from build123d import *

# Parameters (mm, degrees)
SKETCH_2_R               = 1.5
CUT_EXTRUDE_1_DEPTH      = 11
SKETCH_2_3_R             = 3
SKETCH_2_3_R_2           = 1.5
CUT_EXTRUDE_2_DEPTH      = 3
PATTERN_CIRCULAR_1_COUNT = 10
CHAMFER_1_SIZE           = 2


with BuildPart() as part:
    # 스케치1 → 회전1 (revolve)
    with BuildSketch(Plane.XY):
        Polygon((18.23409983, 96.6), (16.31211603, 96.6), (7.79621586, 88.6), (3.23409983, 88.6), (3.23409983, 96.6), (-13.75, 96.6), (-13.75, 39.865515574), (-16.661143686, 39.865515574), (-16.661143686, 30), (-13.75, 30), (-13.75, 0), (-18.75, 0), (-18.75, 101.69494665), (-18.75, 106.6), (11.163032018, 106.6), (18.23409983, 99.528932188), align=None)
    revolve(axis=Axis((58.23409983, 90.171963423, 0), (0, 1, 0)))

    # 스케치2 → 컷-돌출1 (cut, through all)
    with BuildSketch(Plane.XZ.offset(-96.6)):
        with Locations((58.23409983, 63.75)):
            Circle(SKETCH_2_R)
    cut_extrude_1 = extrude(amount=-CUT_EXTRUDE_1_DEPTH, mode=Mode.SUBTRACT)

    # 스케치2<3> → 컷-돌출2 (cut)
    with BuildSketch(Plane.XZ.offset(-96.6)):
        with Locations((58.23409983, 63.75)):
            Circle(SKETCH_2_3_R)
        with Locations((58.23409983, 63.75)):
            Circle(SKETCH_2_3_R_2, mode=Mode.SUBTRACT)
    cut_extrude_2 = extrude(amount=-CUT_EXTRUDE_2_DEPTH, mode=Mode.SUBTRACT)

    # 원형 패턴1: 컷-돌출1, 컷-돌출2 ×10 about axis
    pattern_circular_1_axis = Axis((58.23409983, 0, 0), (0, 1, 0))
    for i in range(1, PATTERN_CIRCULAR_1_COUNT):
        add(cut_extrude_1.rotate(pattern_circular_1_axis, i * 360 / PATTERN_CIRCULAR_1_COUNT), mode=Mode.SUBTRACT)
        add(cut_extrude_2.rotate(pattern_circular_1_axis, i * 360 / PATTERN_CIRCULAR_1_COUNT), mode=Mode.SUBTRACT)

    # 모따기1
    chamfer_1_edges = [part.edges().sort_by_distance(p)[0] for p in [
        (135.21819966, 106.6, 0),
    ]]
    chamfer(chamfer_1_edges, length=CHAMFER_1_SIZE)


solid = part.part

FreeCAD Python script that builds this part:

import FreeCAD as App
import Part
import Sketcher

V = App.Vector
Q = App.Units.Quantity


def edges_at(feature, points):
    """Names of the edges that pass closest to the given points."""
    edges = feature.Shape.Edges
    near = lambda p: min(range(len(edges)), key=lambda i: edges[i].distToShape(Part.Vertex(*p))[0])
    return sorted({f"Edge{near(p) + 1}" for p in points})

doc = App.newDocument("Part")
body = doc.addObject("PartDesign::Body", "Body")

sketch1 = body.newObject("Sketcher::SketchObject", "Sketch")
sketch1.AttachmentSupport = (doc.getObject("XY_Plane"), [""])
sketch1.MapMode = "FlatFace"
sketch1.addGeometry([
    Part.LineSegment(V(16.312116, 96.6, 0), V(18.2341, 96.6, 0)),
    Part.LineSegment(V(18.2341, 96.6, 0), V(18.2341, 99.528932, 0)),
    Part.LineSegment(V(18.2341, 99.528932, 0), V(11.163032, 106.6, 0)),
    Part.LineSegment(V(11.163032, 106.6, 0), V(-18.75, 106.6, 0)),
    Part.LineSegment(V(-18.75, 106.6, 0), V(-18.75, 0, 0)),
    Part.LineSegment(V(-18.75, 0, 0), V(-13.75, 0, 0)),
    Part.LineSegment(V(-13.75, 0, 0), V(-13.75, 30, 0)),
    Part.LineSegment(V(-13.75, 30, 0), V(-16.661144, 30, 0)),
    Part.LineSegment(V(-16.661144, 30, 0), V(-16.661144, 39.865516, 0)),
    Part.LineSegment(V(-16.661144, 39.865516, 0), V(-13.75, 39.865516, 0)),
    Part.LineSegment(V(-13.75, 39.865516, 0), V(-13.75, 96.6, 0)),
    Part.LineSegment(V(-13.75, 96.6, 0), V(3.2341, 96.6, 0)),
    Part.LineSegment(V(3.2341, 96.6, 0), V(3.2341, 88.6, 0)),
    Part.LineSegment(V(3.2341, 88.6, 0), V(7.796216, 88.6, 0)),
    Part.LineSegment(V(7.796216, 88.6, 0), V(16.312116, 96.6, 0)),
], False)
sketch1.addGeometry(Part.LineSegment(V(58.2341, 0, 0), V(58.2341, 106.6, 0)), True)
sketch1.addConstraint([
    Sketcher.Constraint("Coincident", 0, 2, 1, 1),
    Sketcher.Constraint("Coincident", 1, 2, 2, 1),
    Sketcher.Constraint("Coincident", 2, 2, 3, 1),
    Sketcher.Constraint("Coincident", 3, 2, 4, 1),
    Sketcher.Constraint("Coincident", 4, 2, 5, 1),
    Sketcher.Constraint("Coincident", 5, 2, 6, 1),
    Sketcher.Constraint("Coincident", 6, 2, 7, 1),
    Sketcher.Constraint("Coincident", 7, 2, 8, 1),
    Sketcher.Constraint("Coincident", 8, 2, 9, 1),
    Sketcher.Constraint("Coincident", 9, 2, 10, 1),
    Sketcher.Constraint("Coincident", 10, 2, 11, 1),
    Sketcher.Constraint("Coincident", 11, 2, 12, 1),
    Sketcher.Constraint("Coincident", 12, 2, 13, 1),
    Sketcher.Constraint("Coincident", 13, 2, 14, 1),
    Sketcher.Constraint("Coincident", 14, 2, 0, 1),
    Sketcher.Constraint("Horizontal", 0),
    Sketcher.Constraint("Vertical", 1),
    Sketcher.Constraint("Horizontal", 3),
    Sketcher.Constraint("Vertical", 4),
    Sketcher.Constraint("Horizontal", 5),
    Sketcher.Constraint("Vertical", 6),
    Sketcher.Constraint("Horizontal", 7),
    Sketcher.Constraint("Vertical", 8),
    Sketcher.Constraint("Horizontal", 9),
    Sketcher.Constraint("Vertical", 10),
    Sketcher.Constraint("Horizontal", 11),
    Sketcher.Constraint("Vertical", 12),
    Sketcher.Constraint("Horizontal", 13),
    Sketcher.Constraint("Vertical", 15),
    Sketcher.Constraint("PointOnObject", 4, 2, -1),
    Sketcher.Constraint("PointOnObject", 15, 1, -1),
    Sketcher.Constraint("Horizontal", 0, 2, 10, 2),
    Sketcher.Constraint("Horizontal", 3, 2, 15, 2),
    Sketcher.Constraint("Vertical", 6, 2, 9, 2),
    Sketcher.Constraint("DistanceX", 5, 1, 5, 2, 5.0),
    Sketcher.Constraint("DistanceY", 6, 1, 6, 2, 30.0),
    Sketcher.Constraint("DistanceY", 12, 2, 12, 1, 8.0),
    Sketcher.Constraint("Angle", 2, Q("135 deg")),
    Sketcher.Constraint("Distance", 2, 10.0),
    Sketcher.Constraint("DistanceY", 4, 2, 4, 1, 106.6),
    Sketcher.Constraint("DistanceY", 0, 2, 2, 2, 10.0),
    Sketcher.Constraint("DistanceX", 11, 2, 0, 2, 15.0),
    Sketcher.Constraint("DistanceX", 1, 2, 15, 2, 40.0),
    Sketcher.Constraint("DistanceX", 3, 2, -1, 1, 18.75),
    Sketcher.Constraint("DistanceX", 11, 1, 11, 2, 16.9841),
    Sketcher.Constraint("Distance", 14, 11.684201),
    Sketcher.Constraint("DistanceX", 0, 1, 0, 2, 1.921984),
    Sketcher.Constraint("DistanceX", 7, 2, 7, 1, 2.911144),
    Sketcher.Constraint("DistanceY", 8, 1, 8, 2, 9.865516),
])
revolution = body.newObject("PartDesign::Revolution", "Revolution")
revolution.Profile = sketch1
revolution.ReferenceAxis = (sketch1, ["Axis0"])
revolution.Angle = 360

sketch2 = body.newObject("Sketcher::SketchObject", "Sketch001")
sketch2.AttachmentSupport = (doc.getObject("XZ_Plane"), [""])
sketch2.MapMode = "FlatFace"
sketch2.AttachmentOffset = App.Placement(V(0, 0, -96.6), App.Rotation())
sketch2.addGeometry(Part.Circle(V(58.2341, 63.75, 0), V(0, 0, 1), 1.5), False)
sketch2.addConstraint([
    Sketcher.Constraint("Diameter", 0, 3.0),
    Sketcher.Constraint("DistanceY", -1, 1, 0, 3, 63.75),
    Sketcher.Constraint("DistanceX", -1, 1, 0, 3, 58.2341),
])
pocket1 = body.newObject("PartDesign::Pocket", "Pocket")
pocket1.Profile = sketch2
pocket1.Type = "ThroughAll"

sketch3 = body.newObject("Sketcher::SketchObject", "Sketch002")
sketch3.AttachmentSupport = (doc.getObject("XZ_Plane"), [""])
sketch3.MapMode = "FlatFace"
sketch3.AttachmentOffset = App.Placement(V(0, 0, -96.6), App.Rotation())
sketch3.addGeometry([
    Part.Circle(V(58.2341, 63.75, 0), V(0, 0, 1), 3),
    Part.Circle(V(58.2341, 63.75, 0), V(0, 0, 1), 1.5),
], False)
sketch3.addConstraint([
    Sketcher.Constraint("Coincident", 1, 3, 0, 3),
    Sketcher.Constraint("Diameter", 0, 6.0),
    Sketcher.Constraint("Diameter", 1, 3.0),
    Sketcher.Constraint("DistanceY", -1, 1, 0, 3, 63.75),
    Sketcher.Constraint("DistanceX", -1, 1, 0, 3, 58.2341),
])
pocket2 = body.newObject("PartDesign::Pocket", "Pocket001")
pocket2.Profile = sketch3
pocket2.Length = 3
doc.recompute()

datumline = body.newObject("PartDesign::Line", "DatumLine")
datumline.Placement = App.Placement(V(58.2341, 0, 0), App.Rotation(V(0, 0, 1), V(0, 1, 0)))
polarpattern = body.newObject("PartDesign::PolarPattern", "PolarPattern")
polarpattern.Originals = [pocket1, pocket2]
polarpattern.Axis = (datumline, [""])
polarpattern.Angle = 360
polarpattern.Occurrences = 10
body.Tip = polarpattern
doc.recompute()

chamfer = body.newObject("PartDesign::Chamfer", "Chamfer")
chamfer.Base = (polarpattern, edges_at(polarpattern, [(135.218, 106.6, 0)]))
chamfer.Size = 2

doc.recompute()
